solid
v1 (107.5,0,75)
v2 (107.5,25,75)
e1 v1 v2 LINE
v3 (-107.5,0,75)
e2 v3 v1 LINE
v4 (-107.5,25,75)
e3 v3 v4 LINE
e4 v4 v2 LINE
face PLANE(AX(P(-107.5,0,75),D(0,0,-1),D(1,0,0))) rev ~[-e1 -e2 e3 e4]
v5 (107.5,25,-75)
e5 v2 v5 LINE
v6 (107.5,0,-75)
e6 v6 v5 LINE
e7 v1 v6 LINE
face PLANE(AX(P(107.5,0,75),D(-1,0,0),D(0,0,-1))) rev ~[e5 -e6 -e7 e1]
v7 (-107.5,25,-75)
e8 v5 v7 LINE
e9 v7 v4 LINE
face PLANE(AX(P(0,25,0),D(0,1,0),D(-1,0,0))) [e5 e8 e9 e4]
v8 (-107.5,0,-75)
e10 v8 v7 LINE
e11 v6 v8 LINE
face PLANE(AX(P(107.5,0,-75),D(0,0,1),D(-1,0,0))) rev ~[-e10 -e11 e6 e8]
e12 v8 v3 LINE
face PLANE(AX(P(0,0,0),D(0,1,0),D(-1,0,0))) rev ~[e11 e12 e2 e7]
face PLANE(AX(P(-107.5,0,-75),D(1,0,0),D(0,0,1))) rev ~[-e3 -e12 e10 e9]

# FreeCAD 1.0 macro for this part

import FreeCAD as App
import Part
import Sketcher

V = App.Vector

doc = App.newDocument("Part")
params = doc.addObject("Spreadsheet::Sheet", "Params")
for row, (alias, value) in enumerate([
    ("sketch1_width", "215 mm"),
    ("sketch1_height", "150 mm"),
    ("pad1_length", "25 mm"),
], start=1):
    params.set(f"A{row}", alias)
    params.set(f"B{row}", "=" + value)
    params.setAlias(f"B{row}", alias)

body = doc.addObject("PartDesign::Body", "Body")

# Sketch on XZ plane
sketch1 = doc.addObject("Sketcher::SketchObject", "Sketch")
body.addObject(sketch1)
sketch1.AttachmentSupport = (doc.XZ_Plane, [""])
sketch1.MapMode = "FlatFace"
sketch1.addGeometry([
    Part.LineSegment(V(-107.5, -75, 0), V(-107.5, 75, 0)),
    Part.LineSegment(V(-107.5, 75, 0), V(107.5, 75, 0)),
    Part.LineSegment(V(107.5, 75, 0), V(107.5, -75, 0)),
    Part.LineSegment(V(107.5, -75, 0), V(-107.5, -75, 0)),
], False)
sketch1.addConstraint([
    Sketcher.Constraint("Coincident", 0, 2, 1, 1),
    Sketcher.Constraint("Coincident", 1, 2, 2, 1),
    Sketcher.Constraint("Coincident", 2, 2, 3, 1),
    Sketcher.Constraint("Coincident", 3, 2, 0, 1),
    Sketcher.Constraint("Vertical", 0),
    Sketcher.Constraint("Horizontal", 1),
    Sketcher.Constraint("Vertical", 2),
    Sketcher.Constraint("Horizontal", 3),
    Sketcher.Constraint("Symmetric", 0, 2, 2, 2, -1, 1),
    Sketcher.Constraint("DistanceX", 1, 1, 1, 2, 215.0),
    Sketcher.Constraint("DistanceY", 0, 1, 0, 2, 150.0),
])
sketch1.setExpression("Constraints[9]", "Params.sketch1_width")
sketch1.setExpression("Constraints[10]", "Params.sketch1_height")
pad1 = doc.addObject("PartDesign::Pad", "Pad")
body.addObject(pad1)
pad1.Profile = sketch1
pad1.setExpression("Length", "Params.pad1_length")
pad1.Reversed = True

doc.recompute()
